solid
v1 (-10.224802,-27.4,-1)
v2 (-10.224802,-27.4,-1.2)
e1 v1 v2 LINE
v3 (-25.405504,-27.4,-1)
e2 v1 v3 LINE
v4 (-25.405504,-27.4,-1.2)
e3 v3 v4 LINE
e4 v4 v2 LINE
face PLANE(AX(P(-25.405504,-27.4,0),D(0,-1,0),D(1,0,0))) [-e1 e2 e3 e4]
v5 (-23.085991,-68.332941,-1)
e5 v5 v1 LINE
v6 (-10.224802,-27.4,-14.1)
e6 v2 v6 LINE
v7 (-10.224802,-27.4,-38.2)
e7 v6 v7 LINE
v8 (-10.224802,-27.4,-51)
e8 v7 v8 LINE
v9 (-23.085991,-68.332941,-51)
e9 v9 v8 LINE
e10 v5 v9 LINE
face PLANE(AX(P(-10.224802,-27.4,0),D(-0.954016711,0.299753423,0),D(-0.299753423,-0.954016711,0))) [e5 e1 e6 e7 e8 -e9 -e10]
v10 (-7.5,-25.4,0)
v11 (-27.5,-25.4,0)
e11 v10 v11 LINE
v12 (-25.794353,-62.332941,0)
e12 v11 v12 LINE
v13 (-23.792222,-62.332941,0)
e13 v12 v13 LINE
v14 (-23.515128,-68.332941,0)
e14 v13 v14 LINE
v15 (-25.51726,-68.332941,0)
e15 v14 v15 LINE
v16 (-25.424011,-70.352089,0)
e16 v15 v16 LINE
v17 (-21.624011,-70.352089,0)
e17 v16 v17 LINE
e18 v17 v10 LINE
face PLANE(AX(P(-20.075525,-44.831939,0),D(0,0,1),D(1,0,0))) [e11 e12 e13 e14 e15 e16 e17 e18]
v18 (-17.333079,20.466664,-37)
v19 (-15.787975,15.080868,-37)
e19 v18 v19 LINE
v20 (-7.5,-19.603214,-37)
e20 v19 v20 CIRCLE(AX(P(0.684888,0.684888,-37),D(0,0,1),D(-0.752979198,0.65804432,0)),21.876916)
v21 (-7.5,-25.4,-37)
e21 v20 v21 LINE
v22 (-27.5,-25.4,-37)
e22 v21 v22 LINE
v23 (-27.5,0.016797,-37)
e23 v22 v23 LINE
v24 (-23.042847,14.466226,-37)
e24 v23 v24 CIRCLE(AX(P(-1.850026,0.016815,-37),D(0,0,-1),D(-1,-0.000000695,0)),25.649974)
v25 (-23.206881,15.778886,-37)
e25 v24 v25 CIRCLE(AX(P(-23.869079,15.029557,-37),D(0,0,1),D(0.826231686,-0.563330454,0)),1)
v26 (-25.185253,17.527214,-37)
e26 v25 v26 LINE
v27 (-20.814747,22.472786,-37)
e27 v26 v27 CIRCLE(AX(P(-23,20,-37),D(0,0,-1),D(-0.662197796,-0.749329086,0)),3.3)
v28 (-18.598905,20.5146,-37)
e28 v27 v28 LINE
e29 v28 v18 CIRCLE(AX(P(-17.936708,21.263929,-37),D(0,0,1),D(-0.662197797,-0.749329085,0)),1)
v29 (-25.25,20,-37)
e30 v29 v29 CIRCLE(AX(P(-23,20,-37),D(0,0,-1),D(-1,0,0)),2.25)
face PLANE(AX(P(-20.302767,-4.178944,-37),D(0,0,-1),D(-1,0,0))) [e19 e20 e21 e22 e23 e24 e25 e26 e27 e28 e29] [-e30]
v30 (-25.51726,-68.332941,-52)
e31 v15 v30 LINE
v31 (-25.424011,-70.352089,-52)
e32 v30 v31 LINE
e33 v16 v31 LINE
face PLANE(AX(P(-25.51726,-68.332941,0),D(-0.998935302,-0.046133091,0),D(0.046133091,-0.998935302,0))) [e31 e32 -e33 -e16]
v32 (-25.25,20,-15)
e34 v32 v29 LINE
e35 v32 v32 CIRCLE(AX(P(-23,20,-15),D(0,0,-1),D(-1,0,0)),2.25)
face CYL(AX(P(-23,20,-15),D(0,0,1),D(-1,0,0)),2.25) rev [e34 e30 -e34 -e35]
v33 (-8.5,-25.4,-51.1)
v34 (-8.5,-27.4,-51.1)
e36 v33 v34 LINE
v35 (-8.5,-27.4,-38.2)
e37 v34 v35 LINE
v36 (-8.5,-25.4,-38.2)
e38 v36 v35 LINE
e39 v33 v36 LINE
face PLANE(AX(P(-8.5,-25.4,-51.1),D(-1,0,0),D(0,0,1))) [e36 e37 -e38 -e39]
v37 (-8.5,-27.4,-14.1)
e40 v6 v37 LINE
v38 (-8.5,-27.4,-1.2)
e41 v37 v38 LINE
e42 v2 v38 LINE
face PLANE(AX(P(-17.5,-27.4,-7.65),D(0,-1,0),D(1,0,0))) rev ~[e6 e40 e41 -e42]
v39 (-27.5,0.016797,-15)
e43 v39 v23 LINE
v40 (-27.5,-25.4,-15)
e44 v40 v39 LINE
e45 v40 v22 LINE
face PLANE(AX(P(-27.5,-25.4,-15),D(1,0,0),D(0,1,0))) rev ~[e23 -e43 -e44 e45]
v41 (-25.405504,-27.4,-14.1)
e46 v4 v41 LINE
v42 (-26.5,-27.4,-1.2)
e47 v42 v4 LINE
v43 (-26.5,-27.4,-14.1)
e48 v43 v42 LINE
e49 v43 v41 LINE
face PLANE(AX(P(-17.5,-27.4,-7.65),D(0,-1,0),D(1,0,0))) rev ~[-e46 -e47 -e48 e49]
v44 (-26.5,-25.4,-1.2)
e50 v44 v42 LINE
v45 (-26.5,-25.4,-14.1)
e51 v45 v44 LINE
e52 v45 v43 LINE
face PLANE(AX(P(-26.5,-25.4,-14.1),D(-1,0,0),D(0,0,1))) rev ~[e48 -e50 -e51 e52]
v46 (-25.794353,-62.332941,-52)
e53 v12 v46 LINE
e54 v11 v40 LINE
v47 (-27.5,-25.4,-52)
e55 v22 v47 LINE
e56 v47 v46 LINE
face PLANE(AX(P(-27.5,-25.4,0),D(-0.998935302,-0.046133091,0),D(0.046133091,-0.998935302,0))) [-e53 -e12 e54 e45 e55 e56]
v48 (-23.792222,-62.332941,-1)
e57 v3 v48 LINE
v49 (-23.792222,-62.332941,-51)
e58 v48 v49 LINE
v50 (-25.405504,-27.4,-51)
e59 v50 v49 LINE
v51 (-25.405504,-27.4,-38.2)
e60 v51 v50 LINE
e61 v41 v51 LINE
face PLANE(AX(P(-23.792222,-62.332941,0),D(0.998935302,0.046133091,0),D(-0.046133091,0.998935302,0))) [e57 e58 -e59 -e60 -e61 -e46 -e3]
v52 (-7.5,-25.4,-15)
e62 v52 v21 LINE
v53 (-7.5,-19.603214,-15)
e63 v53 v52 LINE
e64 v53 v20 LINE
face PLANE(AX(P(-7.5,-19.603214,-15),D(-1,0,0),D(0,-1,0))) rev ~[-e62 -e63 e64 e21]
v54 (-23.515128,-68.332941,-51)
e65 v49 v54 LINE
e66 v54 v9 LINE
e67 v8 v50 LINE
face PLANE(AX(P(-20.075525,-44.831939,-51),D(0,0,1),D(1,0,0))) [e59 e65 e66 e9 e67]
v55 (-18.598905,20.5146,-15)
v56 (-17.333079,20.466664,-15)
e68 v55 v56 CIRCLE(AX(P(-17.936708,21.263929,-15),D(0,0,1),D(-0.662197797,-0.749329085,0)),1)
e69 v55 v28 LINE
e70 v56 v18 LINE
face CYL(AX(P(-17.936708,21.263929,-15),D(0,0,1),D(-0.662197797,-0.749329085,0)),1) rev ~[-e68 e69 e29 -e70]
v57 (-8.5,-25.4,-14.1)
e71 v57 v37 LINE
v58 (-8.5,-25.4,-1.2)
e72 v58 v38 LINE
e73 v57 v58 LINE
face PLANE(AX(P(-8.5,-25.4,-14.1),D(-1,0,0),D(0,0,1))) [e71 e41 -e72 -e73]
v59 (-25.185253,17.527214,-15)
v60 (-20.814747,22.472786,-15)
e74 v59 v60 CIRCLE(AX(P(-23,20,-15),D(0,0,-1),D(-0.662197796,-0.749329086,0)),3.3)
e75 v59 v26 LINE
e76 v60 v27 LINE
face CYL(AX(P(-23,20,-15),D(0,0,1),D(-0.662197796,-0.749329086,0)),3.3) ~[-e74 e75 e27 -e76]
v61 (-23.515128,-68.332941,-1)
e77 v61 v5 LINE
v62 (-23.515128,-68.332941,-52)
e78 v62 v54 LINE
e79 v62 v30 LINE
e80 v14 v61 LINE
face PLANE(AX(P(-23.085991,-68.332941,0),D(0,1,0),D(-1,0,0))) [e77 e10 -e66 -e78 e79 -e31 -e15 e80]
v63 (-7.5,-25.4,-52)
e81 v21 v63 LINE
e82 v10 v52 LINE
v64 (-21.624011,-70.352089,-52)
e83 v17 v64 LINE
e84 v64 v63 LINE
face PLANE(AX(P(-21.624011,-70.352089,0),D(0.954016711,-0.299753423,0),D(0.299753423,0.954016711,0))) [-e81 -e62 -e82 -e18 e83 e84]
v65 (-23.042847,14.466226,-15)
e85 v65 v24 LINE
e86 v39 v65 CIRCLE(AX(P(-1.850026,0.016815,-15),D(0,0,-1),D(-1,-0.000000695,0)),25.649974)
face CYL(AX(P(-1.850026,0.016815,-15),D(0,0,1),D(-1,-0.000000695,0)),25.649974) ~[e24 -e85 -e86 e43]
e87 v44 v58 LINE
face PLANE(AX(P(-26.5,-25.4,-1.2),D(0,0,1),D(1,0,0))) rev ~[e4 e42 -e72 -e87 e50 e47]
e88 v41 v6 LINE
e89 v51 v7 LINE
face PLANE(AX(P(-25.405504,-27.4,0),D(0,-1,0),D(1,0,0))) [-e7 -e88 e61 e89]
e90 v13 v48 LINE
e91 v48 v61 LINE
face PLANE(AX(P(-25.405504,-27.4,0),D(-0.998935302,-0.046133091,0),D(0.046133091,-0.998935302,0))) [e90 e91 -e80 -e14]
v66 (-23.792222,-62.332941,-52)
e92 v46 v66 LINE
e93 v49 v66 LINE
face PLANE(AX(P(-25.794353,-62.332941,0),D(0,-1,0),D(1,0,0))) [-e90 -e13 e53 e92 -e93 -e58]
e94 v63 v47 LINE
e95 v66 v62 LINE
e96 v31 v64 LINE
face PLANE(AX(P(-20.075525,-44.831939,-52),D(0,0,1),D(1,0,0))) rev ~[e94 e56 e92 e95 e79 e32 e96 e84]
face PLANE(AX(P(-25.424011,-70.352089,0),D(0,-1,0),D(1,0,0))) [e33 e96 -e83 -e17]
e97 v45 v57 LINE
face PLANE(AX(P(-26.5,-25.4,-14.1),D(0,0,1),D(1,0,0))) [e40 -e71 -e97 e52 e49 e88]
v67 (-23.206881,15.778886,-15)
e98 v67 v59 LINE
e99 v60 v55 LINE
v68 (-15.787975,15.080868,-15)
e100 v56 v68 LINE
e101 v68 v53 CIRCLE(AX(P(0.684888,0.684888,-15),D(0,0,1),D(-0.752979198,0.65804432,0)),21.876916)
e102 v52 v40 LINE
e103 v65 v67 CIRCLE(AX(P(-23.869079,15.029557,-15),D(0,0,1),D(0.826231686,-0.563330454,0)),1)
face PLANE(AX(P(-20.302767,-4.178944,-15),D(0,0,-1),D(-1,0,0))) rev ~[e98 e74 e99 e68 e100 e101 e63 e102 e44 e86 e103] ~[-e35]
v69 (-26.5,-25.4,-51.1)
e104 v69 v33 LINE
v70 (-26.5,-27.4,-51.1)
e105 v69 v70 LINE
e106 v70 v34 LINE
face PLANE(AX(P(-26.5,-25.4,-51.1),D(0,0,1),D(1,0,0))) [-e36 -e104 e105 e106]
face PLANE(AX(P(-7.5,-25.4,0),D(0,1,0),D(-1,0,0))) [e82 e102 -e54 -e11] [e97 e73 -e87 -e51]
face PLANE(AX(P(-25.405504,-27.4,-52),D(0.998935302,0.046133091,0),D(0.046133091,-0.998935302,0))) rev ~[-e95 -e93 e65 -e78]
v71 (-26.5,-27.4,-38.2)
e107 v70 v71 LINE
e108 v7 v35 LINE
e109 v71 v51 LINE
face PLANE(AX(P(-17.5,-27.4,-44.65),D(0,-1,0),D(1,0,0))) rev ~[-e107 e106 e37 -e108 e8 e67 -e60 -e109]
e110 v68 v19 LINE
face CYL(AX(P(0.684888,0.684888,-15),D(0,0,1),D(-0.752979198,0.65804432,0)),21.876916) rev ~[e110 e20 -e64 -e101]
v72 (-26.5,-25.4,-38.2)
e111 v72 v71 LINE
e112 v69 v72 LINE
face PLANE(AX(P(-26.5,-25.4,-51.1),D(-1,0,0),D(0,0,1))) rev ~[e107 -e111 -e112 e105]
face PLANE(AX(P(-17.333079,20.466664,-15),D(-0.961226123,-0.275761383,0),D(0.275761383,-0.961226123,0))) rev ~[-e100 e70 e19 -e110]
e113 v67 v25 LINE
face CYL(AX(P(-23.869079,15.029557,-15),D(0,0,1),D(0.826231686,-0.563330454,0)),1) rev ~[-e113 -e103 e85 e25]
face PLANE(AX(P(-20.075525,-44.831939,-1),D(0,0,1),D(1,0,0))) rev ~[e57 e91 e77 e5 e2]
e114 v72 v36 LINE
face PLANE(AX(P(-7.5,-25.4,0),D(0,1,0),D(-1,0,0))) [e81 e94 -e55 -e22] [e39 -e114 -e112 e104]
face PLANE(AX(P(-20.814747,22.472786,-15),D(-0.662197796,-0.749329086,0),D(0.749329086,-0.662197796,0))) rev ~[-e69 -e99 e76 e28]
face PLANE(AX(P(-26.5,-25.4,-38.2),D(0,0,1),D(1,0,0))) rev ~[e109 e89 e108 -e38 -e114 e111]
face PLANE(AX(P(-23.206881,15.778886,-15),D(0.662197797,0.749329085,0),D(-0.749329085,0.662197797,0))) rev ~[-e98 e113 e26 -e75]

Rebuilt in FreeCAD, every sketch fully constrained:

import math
import FreeCAD as App
import Part
import Sketcher

V = App.Vector
Q = App.Units.Quantity

doc = App.newDocument("Part")
body = doc.addObject("PartDesign::Body", "Body")

sketch1 = body.newObject("Sketcher::SketchObject", "Sketch")
sketch1.AttachmentSupport = (doc.getObject("XY_Plane"), [""])
sketch1.MapMode = "FlatFace"
sketch1.addGeometry([
    Part.LineSegment(V(-21.6, -70.4, 0), V(-7.5, -25.4, 0)),
    Part.LineSegment(V(-7.5, -25.4, 0), V(-27.5, -25.4, 0)),
    Part.LineSegment(V(-27.5, -25.4, 0), V(-25.8, -62.3, 0)),
    Part.LineSegment(V(-25.8, -62.3, 0), V(-23.8, -62.3, 0)),
    Part.LineSegment(V(-23.8, -62.3, 0), V(-25.4, -27.4, 0)),
    Part.LineSegment(V(-25.4, -27.4, 0), V(-10.2, -27.4, 0)),
    Part.LineSegment(V(-10.2, -27.4, 0), V(-23.1, -68.3, 0)),
    Part.LineSegment(V(-23.1, -68.3, 0), V(-25.5, -68.3, 0)),
    Part.LineSegment(V(-25.5, -68.3, 0), V(-25.4, -70.4, 0)),
    Part.LineSegment(V(-25.4, -70.4, 0), V(-21.6, -70.4, 0)),
], False)
sketch1.addConstraint([
    Sketcher.Constraint("Coincident", 0, 2, 1, 1),
    Sketcher.Constraint("Coincident", 1, 2, 2, 1),
    Sketcher.Constraint("Coincident", 2, 2, 3, 1),
    Sketcher.Constraint("Coincident", 3, 2, 4, 1),
    Sketcher.Constraint("Coincident", 4, 2, 5, 1),
    Sketcher.Constraint("Coincident", 5, 2, 6, 1),
    Sketcher.Constraint("Coincident", 6, 2, 7, 1),
    Sketcher.Constraint("Coincident", 7, 2, 8, 1),
    Sketcher.Constraint("Coincident", 8, 2, 9, 1),
    Sketcher.Constraint("Coincident", 9, 2, 0, 1),
    Sketcher.Constraint("Horizontal", 1),
    Sketcher.Constraint("Horizontal", 3),
    Sketcher.Constraint("Horizontal", 5),
    Sketcher.Constraint("Horizontal", 7),
    Sketcher.Constraint("Horizontal", 9),
    Sketcher.Constraint("Parallel", 2, 4),
    Sketcher.Constraint("Parallel", 0, 6),
    Sketcher.Constraint("Parallel", 4, 8),
    Sketcher.Constraint("DistanceX", 1, 2, 1, 1, Q("20 mm")),
    Sketcher.Constraint("DistanceX", 9, 1, 9, 2, Q("3.8 mm")),
    Sketcher.Constraint("DistanceY", 4, 2, 1, 2, Q("2 mm")),
    Sketcher.Constraint("DistanceY", 6, 2, 3, 2, Q("6 mm")),
    Sketcher.Constraint("DistanceX", 0, 2, -1, 1, Q("7.5 mm")),
    Sketcher.Constraint("DistanceY", 0, 2, -1, 1, Q("25.4 mm")),
    Sketcher.Constraint("DistanceX", 5, 1, 5, 2, Q("15.180702 mm")),
    Sketcher.Constraint("Distance", 8, Q("2.0213 mm")),
    Sketcher.Constraint("DistanceX", 3, 1, 3, 2, Q("2.002132 mm")),
    Sketcher.Constraint("DistanceX", 7, 2, 7, 1, Q("2.431269 mm")),
    Sketcher.Constraint("DistanceY", 2, 2, -1, 1, Q("62.332941 mm")),
    Sketcher.Constraint("DistanceX", 3, 2, -1, 1, Q("23.792222 mm")),
])
pad1 = body.newObject("PartDesign::Pad", "Pad")
pad1.Profile = sketch1
pad1.Length = 52
pad1.Reversed = True

sketch2 = body.newObject("Sketcher::SketchObject", "Sketch001")
sketch2.AttachmentSupport = (doc.getObject("XY_Plane"), [""])
sketch2.MapMode = "FlatFace"
sketch2.addGeometry([
    Part.LineSegment(V(-23.52, -68.33, 0), V(-23.09, -68.33, 0)),
    Part.LineSegment(V(-23.09, -68.33, 0), V(-10.22, -27.4, 0)),
    Part.LineSegment(V(-10.22, -27.4, 0), V(-25.41, -27.4, 0)),
    Part.LineSegment(V(-25.41, -27.4, 0), V(-23.52, -68.33, 0)),
], False)
sketch2.addConstraint([
    Sketcher.Constraint("Coincident", 0, 2, 1, 1),
    Sketcher.Constraint("Coincident", 1, 2, 2, 1),
    Sketcher.Constraint("Coincident", 2, 2, 3, 1),
    Sketcher.Constraint("Coincident", 3, 2, 0, 1),
    Sketcher.Constraint("Horizontal", 0),
    Sketcher.Constraint("Horizontal", 2),
    Sketcher.Constraint("DistanceY", 1, 2, -1, 1, Q("27.4 mm")),
    Sketcher.Constraint("DistanceX", 2, 2, 2, 1, Q("15.180702 mm")),
    Sketcher.Constraint("Distance", 3, Q("40.976568 mm")),
    Sketcher.Constraint("DistanceX", 0, 1, 0, 2, Q("0.429137 mm")),
    Sketcher.Constraint("DistanceX", 0, 2, -1, 1, Q("23.085991 mm")),
    Sketcher.Constraint("DistanceY", 0, 2, -1, 1, Q("68.332941 mm")),
])
pad2 = body.newObject("PartDesign::Pad", "Pad001")
pad2.Profile = sketch2
pad2.Length = 1
pad2.Reversed = True

sketch3 = body.newObject("Sketcher::SketchObject", "Sketch002")
sketch3.AttachmentSupport = (doc.getObject("XY_Plane"), [""])
sketch3.MapMode = "FlatFace"
sketch3.AttachmentOffset = App.Placement(V(0, 0, -52), App.Rotation())
sketch3.addGeometry([
    Part.LineSegment(V(-23.52, -68.33, 0), V(-23.09, -68.33, 0)),
    Part.LineSegment(V(-23.09, -68.33, 0), V(-10.22, -27.4, 0)),
    Part.LineSegment(V(-10.22, -27.4, 0), V(-25.41, -27.4, 0)),
    Part.LineSegment(V(-25.41, -27.4, 0), V(-23.52, -68.33, 0)),
], False)
sketch3.addConstraint([
    Sketcher.Constraint("Coincident", 0, 2, 1, 1),
    Sketcher.Constraint("Coincident", 1, 2, 2, 1),
    Sketcher.Constraint("Coincident", 2, 2, 3, 1),
    Sketcher.Constraint("Coincident", 3, 2, 0, 1),
    Sketcher.Constraint("Horizontal", 0),
    Sketcher.Constraint("Horizontal", 2),
    Sketcher.Constraint("DistanceY", 1, 2, -1, 1, Q("27.4 mm")),
    Sketcher.Constraint("DistanceX", 2, 2, 2, 1, Q("15.180702 mm")),
    Sketcher.Constraint("Distance", 3, Q("40.976568 mm")),
    Sketcher.Constraint("DistanceX", 0, 1, 0, 2, Q("0.429137 mm")),
    Sketcher.Constraint("DistanceX", 0, 2, -1, 1, Q("23.085991 mm")),
    Sketcher.Constraint("DistanceY", 0, 2, -1, 1, Q("68.332941 mm")),
])
pad3 = body.newObject("PartDesign::Pad", "Pad002")
pad3.Profile = sketch3
pad3.Length = 1

sketch4 = body.newObject("Sketcher::SketchObject", "Sketch003")
sketch4.AttachmentSupport = (doc.getObject("XZ_Plane"), [""])
sketch4.MapMode = "FlatFace"
sketch4.AttachmentOffset = App.Placement(V(0, 0, 25.4), App.Rotation())
sketch4.addGeometry([
    Part.LineSegment(V(-27, -1, 0), V(-27, -14, 0)),
    Part.LineSegment(V(-27, -14, 0), V(-8, -14, 0)),
    Part.LineSegment(V(-8, -14, 0), V(-8, -1, 0)),
    Part.LineSegment(V(-8, -1, 0), V(-27, -1, 0)),
    Part.LineSegment(V(-26, -38, 0), V(-26, -51, 0)),
    Part.LineSegment(V(-26, -51, 0), V(-8, -51, 0)),
    Part.LineSegment(V(-8, -51, 0), V(-8, -38, 0)),
    Part.LineSegment(V(-8, -38, 0), V(-26, -38, 0)),
], False)
sketch4.addConstraint([
    Sketcher.Constraint("Coincident", 0, 2, 1, 1),
    Sketcher.Constraint("Coincident", 1, 2, 2, 1),
    Sketcher.Constraint("Coincident", 2, 2, 3, 1),
    Sketcher.Constraint("Coincident", 3, 2, 0, 1),
    Sketcher.Constraint("Coincident", 4, 2, 5, 1),
    Sketcher.Constraint("Coincident", 5, 2, 6, 1),
    Sketcher.Constraint("Coincident", 6, 2, 7, 1),
    Sketcher.Constraint("Coincident", 7, 2, 4, 1),
    Sketcher.Constraint("Vertical", 0),
    Sketcher.Constraint("Horizontal", 1),
    Sketcher.Constraint("Vertical", 2),
    Sketcher.Constraint("Horizontal", 3),
    Sketcher.Constraint("Vertical", 4),
    Sketcher.Constraint("Horizontal", 5),
    Sketcher.Constraint("Vertical", 6),
    Sketcher.Constraint("Horizontal", 7),
    Sketcher.Constraint("Vertical", 3, 2, 4, 2),
    Sketcher.Constraint("Vertical", 2, 2, 5, 2),
    Sketcher.Constraint("Equal", 2, 4),
    Sketcher.Constraint("DistanceX", 1, 1, 1, 2, Q("18 mm")),
    Sketcher.Constraint("DistanceY", 0, 2, 0, 1, Q("12.9 mm")),
    Sketcher.Constraint("DistanceY", 4, 2, 0, 2, Q("37 mm")),
    Sketcher.Constraint("DistanceX", 0, 2, -1, 1, Q("26.5 mm")),
    Sketcher.Constraint("DistanceY", 0, 2, -1, 1, Q("14.1 mm")),
])
pocket1 = body.newObject("PartDesign::Pocket", "Pocket")
pocket1.Profile = sketch4
pocket1.Length = 2
pocket1.Reversed = True

sketch5 = body.newObject("Sketcher::SketchObject", "Sketch004")
sketch5.AttachmentSupport = (doc.getObject("XY_Plane"), [""])
sketch5.MapMode = "FlatFace"
sketch5.AttachmentOffset = App.Placement(V(0, 0, -15), App.Rotation())
sketch5.addGeometry([
    Part.LineSegment(V(-7.5, -25.4, 0), V(-27.5, -25.4, 0)),
    Part.LineSegment(V(-27.5, -25.4, 0), V(-27.5, 0, 0)),
    Part.ArcOfCircle(Part.Circle(V(-1.9, 0, 0), V(0, 0, 1), 25.6), math.radians(146), math.radians(180)),
    Part.ArcOfCircle(Part.Circle(V(-23.9, 15, 0), V(0, 0, 1), 1), math.radians(-34), math.radians(49)),
    Part.LineSegment(V(-23.2, 15.8, 0), V(-25.2, 17.5, 0)),
    Part.ArcOfCircle(Part.Circle(V(-23, 20, 0), V(0, 0, 1), 3.3), math.radians(49), math.radians(229)),
    Part.LineSegment(V(-20.8, 22.5, 0), V(-18.6, 20.5, 0)),
    Part.ArcOfCircle(Part.Circle(V(-17.9, 21.3, 0), V(0, 0, 1), 1), math.radians(-131), math.radians(-53)),
    Part.LineSegment(V(-17.3, 20.5, 0), V(-15.8, 15.1, 0)),
    Part.ArcOfCircle(Part.Circle(V(0.7, 0.7, 0), V(0, 0, 1), 21.9), math.radians(139), math.radians(248)),
    Part.LineSegment(V(-7.5, -19.6, 0), V(-7.5, -25.4, 0)),
    Part.Circle(V(-23, 20, 0), V(0, 0, 1), 2.2),
], False)
sketch5.addConstraint([
    Sketcher.Constraint("Coincident", 0, 2, 1, 1),
    Sketcher.Constraint("Tangent", 1, 2, 2, 2),
    Sketcher.Constraint("Tangent", 2, 1, 3, 1),
    Sketcher.Constraint("Tangent", 3, 2, 4, 1),
    Sketcher.Constraint("Tangent", 4, 2, 5, 2),
    Sketcher.Constraint("Tangent", 5, 1, 6, 1),
    Sketcher.Constraint("Tangent", 6, 2, 7, 1),
    Sketcher.Constraint("Coincident", 7, 2, 8, 1),
    Sketcher.Constraint("Coincident", 8, 2, 9, 1),
    Sketcher.Constraint("Coincident", 9, 2, 10, 1),
    Sketcher.Constraint("Coincident", 10, 2, 0, 1),
    Sketcher.Constraint("Horizontal", 0),
    Sketcher.Constraint("Vertical", 1),
    Sketcher.Constraint("Vertical", 10),
    Sketcher.Constraint("Coincident", 11, 3, 5, 3),
    Sketcher.Constraint("Equal", 3, 7),
    Sketcher.Constraint("Parallel", 4, 6),
    Sketcher.Constraint("Radius", 3, Q("1 mm")),
    Sketcher.Constraint("Diameter", 11, Q("4.5 mm")),
    Sketcher.Constraint("Radius", 5, Q("3.3 mm")),
    Sketcher.Constraint("DistanceX", 0, 2, 0, 1, Q("20 mm")),
    Sketcher.Constraint("DistanceX", 5, 3, -1, 1, Q("23 mm")),
    Sketcher.Constraint("DistanceY", -1, 1, 5, 3, Q("20 mm")),
    Sketcher.Constraint("DistanceX", 0, 2, -1, 1, Q("27.5 mm")),
    Sketcher.Constraint("DistanceY", 0, 2, -1, 1, Q("25.4 mm")),
    Sketcher.Constraint("Radius", 2, Q("25.649974 mm")),
    Sketcher.Constraint("Radius", 9, Q("21.876916 mm")),
    Sketcher.Constraint("Distance", 6, Q("2.957101 mm")),
    Sketcher.Constraint("DistanceY", -1, 1, 6, 2, Q("20.5146 mm")),
    Sketcher.Constraint("DistanceY", 3, 2, 5, 1, Q("6.6939 mm")),
    Sketcher.Constraint("DistanceY", 9, 2, 9, 3, Q("20.288101 mm")),
    Sketcher.Constraint("DistanceY", 10, 2, 10, 1, Q("5.796786 mm")),
    Sketcher.Constraint("DistanceX", 7, 2, -1, 1, Q("17.333079 mm")),
    Sketcher.Constraint("DistanceX", 6, 2, 8, 2, Q("2.810931 mm")),
])
pad4 = body.newObject("PartDesign::Pad", "Pad003")
pad4.Profile = sketch5
pad4.Length = 22
pad4.Reversed = True

doc.recompute()
